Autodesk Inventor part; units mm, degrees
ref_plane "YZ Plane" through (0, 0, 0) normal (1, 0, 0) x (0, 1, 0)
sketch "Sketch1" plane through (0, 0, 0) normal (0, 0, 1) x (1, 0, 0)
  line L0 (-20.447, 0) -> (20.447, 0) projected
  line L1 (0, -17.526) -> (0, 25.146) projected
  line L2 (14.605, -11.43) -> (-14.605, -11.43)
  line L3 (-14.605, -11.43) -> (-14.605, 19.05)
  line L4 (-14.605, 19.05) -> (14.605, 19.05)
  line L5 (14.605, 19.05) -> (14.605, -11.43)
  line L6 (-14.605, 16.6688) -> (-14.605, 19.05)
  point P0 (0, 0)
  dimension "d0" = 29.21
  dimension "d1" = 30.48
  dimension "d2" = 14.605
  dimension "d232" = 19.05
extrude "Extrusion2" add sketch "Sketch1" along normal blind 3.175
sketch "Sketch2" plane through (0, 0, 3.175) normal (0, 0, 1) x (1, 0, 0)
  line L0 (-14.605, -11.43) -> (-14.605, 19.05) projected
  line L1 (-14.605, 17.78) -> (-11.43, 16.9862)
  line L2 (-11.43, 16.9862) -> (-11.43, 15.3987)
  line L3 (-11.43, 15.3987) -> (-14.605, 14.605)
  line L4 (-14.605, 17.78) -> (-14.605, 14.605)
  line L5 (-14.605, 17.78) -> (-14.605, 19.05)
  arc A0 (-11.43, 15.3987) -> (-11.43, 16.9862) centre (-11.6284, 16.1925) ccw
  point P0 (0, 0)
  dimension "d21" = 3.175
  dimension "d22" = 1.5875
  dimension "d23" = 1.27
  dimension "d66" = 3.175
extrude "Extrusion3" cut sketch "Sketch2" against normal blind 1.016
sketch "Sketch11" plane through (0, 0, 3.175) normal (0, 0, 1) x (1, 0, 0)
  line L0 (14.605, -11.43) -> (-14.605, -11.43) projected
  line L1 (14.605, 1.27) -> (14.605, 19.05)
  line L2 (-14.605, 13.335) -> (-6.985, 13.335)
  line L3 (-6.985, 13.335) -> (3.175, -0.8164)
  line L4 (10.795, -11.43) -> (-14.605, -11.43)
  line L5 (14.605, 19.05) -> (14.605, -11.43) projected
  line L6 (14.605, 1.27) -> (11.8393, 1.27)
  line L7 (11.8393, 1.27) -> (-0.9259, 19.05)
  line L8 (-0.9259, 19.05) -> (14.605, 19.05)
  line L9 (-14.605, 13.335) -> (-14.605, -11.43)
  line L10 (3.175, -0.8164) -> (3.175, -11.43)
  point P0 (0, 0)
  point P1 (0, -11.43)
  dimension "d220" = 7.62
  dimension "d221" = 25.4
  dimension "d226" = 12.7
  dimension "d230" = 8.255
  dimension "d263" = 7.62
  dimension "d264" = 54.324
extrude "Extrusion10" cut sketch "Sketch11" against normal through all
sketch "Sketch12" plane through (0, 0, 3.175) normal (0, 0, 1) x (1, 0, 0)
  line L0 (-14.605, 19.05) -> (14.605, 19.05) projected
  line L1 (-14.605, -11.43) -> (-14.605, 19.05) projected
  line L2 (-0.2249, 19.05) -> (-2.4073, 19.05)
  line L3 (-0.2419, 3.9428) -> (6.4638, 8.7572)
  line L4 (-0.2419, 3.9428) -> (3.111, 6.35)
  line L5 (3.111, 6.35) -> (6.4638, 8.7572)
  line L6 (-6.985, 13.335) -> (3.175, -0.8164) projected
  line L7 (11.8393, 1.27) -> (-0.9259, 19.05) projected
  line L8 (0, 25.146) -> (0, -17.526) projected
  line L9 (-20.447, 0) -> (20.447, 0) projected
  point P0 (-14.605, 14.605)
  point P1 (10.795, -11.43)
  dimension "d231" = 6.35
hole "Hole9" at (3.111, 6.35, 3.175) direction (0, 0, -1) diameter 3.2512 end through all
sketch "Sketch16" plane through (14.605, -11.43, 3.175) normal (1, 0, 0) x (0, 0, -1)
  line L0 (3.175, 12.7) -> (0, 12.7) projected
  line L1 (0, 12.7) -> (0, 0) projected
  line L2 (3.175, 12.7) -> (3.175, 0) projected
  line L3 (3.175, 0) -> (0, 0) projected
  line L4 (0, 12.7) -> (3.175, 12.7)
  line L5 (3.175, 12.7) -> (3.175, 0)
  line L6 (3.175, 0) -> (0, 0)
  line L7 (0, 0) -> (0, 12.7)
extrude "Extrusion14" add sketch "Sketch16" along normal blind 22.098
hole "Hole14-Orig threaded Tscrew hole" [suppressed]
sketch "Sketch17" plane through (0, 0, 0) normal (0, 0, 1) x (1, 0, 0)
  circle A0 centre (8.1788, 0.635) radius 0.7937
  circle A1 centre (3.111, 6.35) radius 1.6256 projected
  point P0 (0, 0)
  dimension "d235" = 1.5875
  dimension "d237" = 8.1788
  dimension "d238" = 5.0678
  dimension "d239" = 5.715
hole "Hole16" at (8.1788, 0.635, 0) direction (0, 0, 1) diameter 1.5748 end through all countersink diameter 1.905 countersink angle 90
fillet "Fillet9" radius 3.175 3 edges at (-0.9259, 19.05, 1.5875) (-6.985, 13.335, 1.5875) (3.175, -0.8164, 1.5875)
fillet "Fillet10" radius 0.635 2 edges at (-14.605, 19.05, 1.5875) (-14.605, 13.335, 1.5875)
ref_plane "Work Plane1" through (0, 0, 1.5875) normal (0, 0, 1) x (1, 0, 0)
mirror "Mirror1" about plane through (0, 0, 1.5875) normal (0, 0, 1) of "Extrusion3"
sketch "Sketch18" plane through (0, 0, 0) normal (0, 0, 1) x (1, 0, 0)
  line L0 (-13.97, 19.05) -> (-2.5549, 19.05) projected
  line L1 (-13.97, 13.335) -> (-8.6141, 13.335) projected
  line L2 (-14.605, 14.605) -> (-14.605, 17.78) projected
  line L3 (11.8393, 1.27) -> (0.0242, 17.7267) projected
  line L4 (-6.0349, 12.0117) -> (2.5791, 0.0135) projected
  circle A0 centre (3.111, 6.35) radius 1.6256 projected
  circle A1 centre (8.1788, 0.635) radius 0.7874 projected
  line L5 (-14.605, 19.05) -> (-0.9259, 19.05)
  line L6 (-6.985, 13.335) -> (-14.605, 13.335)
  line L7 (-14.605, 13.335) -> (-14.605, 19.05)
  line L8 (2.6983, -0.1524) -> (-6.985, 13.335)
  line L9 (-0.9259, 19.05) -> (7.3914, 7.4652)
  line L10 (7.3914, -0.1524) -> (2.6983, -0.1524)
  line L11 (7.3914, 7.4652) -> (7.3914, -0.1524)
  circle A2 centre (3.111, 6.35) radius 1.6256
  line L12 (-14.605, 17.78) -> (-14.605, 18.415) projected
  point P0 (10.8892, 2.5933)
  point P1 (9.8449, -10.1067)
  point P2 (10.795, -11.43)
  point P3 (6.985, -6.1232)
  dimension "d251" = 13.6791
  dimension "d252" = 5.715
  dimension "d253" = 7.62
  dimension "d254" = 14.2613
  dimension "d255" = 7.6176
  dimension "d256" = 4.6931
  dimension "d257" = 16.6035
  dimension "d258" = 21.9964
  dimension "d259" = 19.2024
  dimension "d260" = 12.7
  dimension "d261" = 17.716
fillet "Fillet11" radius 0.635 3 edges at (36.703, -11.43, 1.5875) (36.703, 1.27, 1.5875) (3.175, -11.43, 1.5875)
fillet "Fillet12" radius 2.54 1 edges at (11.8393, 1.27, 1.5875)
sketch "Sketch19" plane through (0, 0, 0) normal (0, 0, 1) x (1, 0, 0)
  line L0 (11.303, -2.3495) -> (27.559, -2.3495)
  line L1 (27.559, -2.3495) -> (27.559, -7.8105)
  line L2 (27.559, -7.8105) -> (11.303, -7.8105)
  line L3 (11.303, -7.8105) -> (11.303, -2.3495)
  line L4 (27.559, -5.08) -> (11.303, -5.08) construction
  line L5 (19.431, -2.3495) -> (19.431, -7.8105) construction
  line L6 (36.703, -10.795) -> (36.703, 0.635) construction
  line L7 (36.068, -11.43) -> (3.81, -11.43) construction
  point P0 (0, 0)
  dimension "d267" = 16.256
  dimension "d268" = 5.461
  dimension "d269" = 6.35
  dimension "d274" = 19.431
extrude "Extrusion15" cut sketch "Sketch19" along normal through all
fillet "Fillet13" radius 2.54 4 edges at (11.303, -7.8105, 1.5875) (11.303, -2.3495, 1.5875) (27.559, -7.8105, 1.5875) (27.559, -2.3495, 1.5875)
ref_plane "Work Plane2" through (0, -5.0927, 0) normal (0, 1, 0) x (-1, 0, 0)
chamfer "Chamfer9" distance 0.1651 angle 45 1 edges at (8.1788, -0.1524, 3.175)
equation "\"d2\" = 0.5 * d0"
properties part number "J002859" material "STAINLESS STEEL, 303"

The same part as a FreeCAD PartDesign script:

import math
import FreeCAD as App
import Part
import Sketcher

V = App.Vector
Q = App.Units.Quantity


def edges_at(feature, points):
    """Names of the edges that pass closest to the given points."""
    edges = feature.Shape.Edges
    near = lambda p: min(range(len(edges)), key=lambda i: edges[i].distToShape(Part.Vertex(*p))[0])
    return sorted({f"Edge{near(p) + 1}" for p in points})

doc = App.newDocument("Part")
body = doc.addObject("PartDesign::Body", "Body")

sketch1 = body.newObject("Sketcher::SketchObject", "Sketch")
sketch1.AttachmentSupport = (doc.getObject("XY_Plane"), [""])
sketch1.MapMode = "FlatFace"
sketch1.addGeometry([
    Part.LineSegment(V(-15, -11, 0), V(15, -11, 0)),
    Part.LineSegment(V(15, -11, 0), V(15, 19, 0)),
    Part.LineSegment(V(15, 19, 0), V(-15, 19, 0)),
    Part.LineSegment(V(-15, 19, 0), V(-15, -11, 0)),
], False)
sketch1.addConstraint([
    Sketcher.Constraint("Coincident", 0, 2, 1, 1),
    Sketcher.Constraint("Coincident", 1, 2, 2, 1),
    Sketcher.Constraint("Coincident", 2, 2, 3, 1),
    Sketcher.Constraint("Coincident", 3, 2, 0, 1),
    Sketcher.Constraint("Horizontal", 0),
    Sketcher.Constraint("Vertical", 1),
    Sketcher.Constraint("Horizontal", 2),
    Sketcher.Constraint("Vertical", 3),
    Sketcher.Constraint("DistanceY", 1, 1, 1, 2, Q("1.2 in")),
    Sketcher.Constraint("DistanceX", 0, 1, 0, 2, Q("1.15 in")),
    Sketcher.Constraint("DistanceY", -1, 1, 1, 2, Q("0.75 in")),
    Sketcher.Constraint("DistanceX", -1, 1, 0, 2, Q("0.575 in")),
])
pad1 = body.newObject("PartDesign::Pad", "Pad")
pad1.Profile = sketch1
pad1.Length = Q("0.125 in")

sketch2 = body.newObject("Sketcher::SketchObject", "Sketch001")
sketch2.AttachmentSupport = (doc.getObject("XY_Plane"), [""])
sketch2.MapMode = "FlatFace"
sketch2.AttachmentOffset = App.Placement(V(0, 0, 0.125 * 25.4), App.Rotation())
sketch2.addGeometry([
    Part.LineSegment(V(-14.6, 17.8, 0), V(-14.6, 14.6, 0)),
    Part.LineSegment(V(-14.6, 14.6, 0), V(-11.4, 15.4, 0)),
    Part.ArcOfCircle(Part.Circle(V(-11.6, 16.2, 0), V(0, 0, 1), 0.8), math.radians(-76), math.radians(76)),
    Part.LineSegment(V(-11.4, 17, 0), V(-14.6, 17.8, 0)),
], False)
sketch2.addConstraint([
    Sketcher.Constraint("Coincident", 0, 2, 1, 1),
    Sketcher.Constraint("Tangent", 1, 2, 2, 1),
    Sketcher.Constraint("Tangent", 2, 2, 3, 1),
    Sketcher.Constraint("Coincident", 3, 2, 0, 1),
    Sketcher.Constraint("Vertical", 0),
    Sketcher.Constraint("Vertical", 1, 2, 2, 2),
    Sketcher.Constraint("DistanceY", 0, 2, 0, 1, Q("0.125 in")),
    Sketcher.Constraint("DistanceX", 0, 2, 1, 2, Q("0.125 in")),
    Sketcher.Constraint("DistanceY", 1, 2, 2, 2, Q("0.0625 in")),
    Sketcher.Constraint("DistanceY", -1, 1, 3, 2, Q("0.7 in")),
    Sketcher.Constraint("DistanceX", 1, 2, -1, 1, Q("0.45 in")),
])
pocket1 = body.newObject("PartDesign::Pocket", "Pocket")
pocket1.Profile = sketch2
pocket1.Length = Q("0.04 in")

sketch3 = body.newObject("Sketcher::SketchObject", "Sketch002")
sketch3.AttachmentSupport = (doc.getObject("XY_Plane"), [""])
sketch3.MapMode = "FlatFace"
sketch3.AttachmentOffset = App.Placement(V(0, 0, 0.125 * 25.4), App.Rotation())
sketch3.addGeometry([
    Part.LineSegment(V(-14.6, -11.4, 0), V(3.2, -11.4, 0)),
    Part.LineSegment(V(3.2, -11.4, 0), V(3.2, -0.8, 0)),
    Part.LineSegment(V(3.2, -0.8, 0), V(-7, 13.3, 0)),
    Part.LineSegment(V(-7, 13.3, 0), V(-14.6, 13.3, 0)),
    Part.LineSegment(V(-14.6, 13.3, 0), V(-14.6, -11.4, 0)),
    Part.LineSegment(V(11.8, 1.3, 0), V(14.6, 1.3, 0)),
    Part.LineSegment(V(14.6, 1.3, 0), V(14.6, 19.1, 0)),
    Part.LineSegment(V(14.6, 19.1, 0), V(-0.9, 19.1, 0)),
    Part.LineSegment(V(-0.9, 19.1, 0), V(11.8, 1.3, 0)),
], False)
sketch3.addConstraint([
    Sketcher.Constraint("Coincident", 0, 2, 1, 1),
    Sketcher.Constraint("Coincident", 1, 2, 2, 1),
    Sketcher.Constraint("Coincident", 2, 2, 3, 1),
    Sketcher.Constraint("Coincident", 3, 2, 4, 1),
    Sketcher.Constraint("Coincident", 4, 2, 0, 1),
    Sketcher.Constraint("Coincident", 5, 2, 6, 1),
    Sketcher.Constraint("Coincident", 6, 2, 7, 1),
    Sketcher.Constraint("Coincident", 7, 2, 8, 1),
    Sketcher.Constraint("Coincident", 8, 2, 5, 1),
    Sketcher.Constraint("Horizontal", 0),
    Sketcher.Constraint("Vertical", 1),
    Sketcher.Constraint("Horizontal", 3),
    Sketcher.Constraint("Vertical", 4),
    Sketcher.Constraint("Horizontal", 5),
    Sketcher.Constraint("Vertical", 6),
    Sketcher.Constraint("Horizontal", 7),
    Sketcher.Constraint("Parallel", 2, 8),
    Sketcher.Constraint("Equal", 0, 6),
    Sketcher.Constraint("DistanceX", 3, 2, 3, 1, Q("0.3 in")),
    Sketcher.Constraint("DistanceY", 0, 2, 5, 2, Q("0.5 in")),
    Sketcher.Constraint("DistanceX", 0, 1, 0, 2, Q("0.7 in")),
    Sketcher.Constraint("DistanceY", 4, 2, 4, 1, Q("0.975 in")),
    Sketcher.Constraint("DistanceY", 0, 2, -1, 1, Q("0.45 in")),
    Sketcher.Constraint("DistanceX", 1, 2, 5, 2, Q("0.45 in")),
    Sketcher.Constraint("DistanceX", -1, 1, 0, 2, Q("0.125 in")),
    Sketcher.Constraint("DistanceX", 5, 1, 5, 2, 2.7657),
    Sketcher.Constraint("DistanceX", 7, 2, 7, 1, 15.531),
])
pocket2 = body.newObject("PartDesign::Pocket", "Pocket001")
pocket2.Profile = sketch3
pocket2.Type = "ThroughAll"

sketch4 = body.newObject("Sketcher::SketchObject", "Sketch003")
sketch4.AttachmentSupport = (doc.getObject("XY_Plane"), [""])
sketch4.MapMode = "FlatFace"
sketch4.AttachmentOffset = App.Placement(V(0, 0, 0.125 * 25.4), App.Rotation())
sketch4.addGeometry(Part.Circle(V(3.1, 6.3, 0), V(0, 0, 1), 1.6), False)
sketch4.addConstraint([
    Sketcher.Constraint("Diameter", 0, Q("0.128 in")),
    Sketcher.Constraint("DistanceY", -1, 1, 0, 3, Q("0.25 in")),
    Sketcher.Constraint("DistanceX", -1, 1, 0, 3, 3.111),
])
doc.recompute()
hole = body.newObject("PartDesign::Hole", "Hole")
hole.Profile = sketch4
hole.ThreadType = "None"
hole.Diameter = Q("0.128 in")
hole.DepthType = "ThroughAll"

sketch5 = body.newObject("Sketcher::SketchObject", "Sketch004")
sketch5.AttachmentSupport = (doc.getObject("YZ_Plane"), [""])
sketch5.MapMode = "FlatFace"
sketch5.AttachmentOffset = App.Placement(V(0, 0, 0.575 * 25.4), App.Rotation())
sketch5.addGeometry([
    Part.LineSegment(V(-11.4, 0, 0), V(1.3, 0, 0)),
    Part.LineSegment(V(1.3, 0, 0), V(1.3, 3.2, 0)),
    Part.LineSegment(V(1.3, 3.2, 0), V(-11.4, 3.2, 0)),
    Part.LineSegment(V(-11.4, 3.2, 0), V(-11.4, 0, 0)),
], False)
sketch5.addConstraint([
    Sketcher.Constraint("Coincident", 0, 2, 1, 1),
    Sketcher.Constraint("Coincident", 1, 2, 2, 1),
    Sketcher.Constraint("Coincident", 2, 2, 3, 1),
    Sketcher.Constraint("Coincident", 3, 2, 0, 1),
    Sketcher.Constraint("Horizontal", 0),
    Sketcher.Constraint("Vertical", 1),
    Sketcher.Constraint("Horizontal", 2),
    Sketcher.Constraint("Vertical", 3),
    Sketcher.Constraint("PointOnObject", 0, 2, -1),
    Sketcher.Constraint("DistanceX", 0, 1, 0, 2, Q("0.5 in")),
    Sketcher.Constraint("DistanceY", 1, 1, 1, 2, Q("0.125 in")),
    Sketcher.Constraint("DistanceX", -1, 1, 0, 2, Q("0.05 in")),
])
pad2 = body.newObject("PartDesign::Pad", "Pad001")
pad2.Profile = sketch5
pad2.Length = Q("0.87 in")

sketch6 = body.newObject("Sketcher::SketchObject", "Sketch005")
sketch6.AttachmentSupport = (doc.getObject("XY_Plane"), [""])
sketch6.MapMode = "FlatFace"
sketch6.addGeometry(Part.Circle(V(8.2, 0.6, 0), V(0, 0, 1), 0.8), False)
sketch6.addConstraint([
    Sketcher.Constraint("Diameter", 0, Q("0.062 in")),
    Sketcher.Constraint("DistanceX", -1, 1, 0, 3, Q("0.322 in")),
    Sketcher.Constraint("DistanceY", -1, 1, 0, 3, Q("0.025 in")),
])
doc.recompute()
hole2 = body.newObject("PartDesign::Hole", "Hole001")
hole2.Profile = sketch6
hole2.ThreadType = "None"
hole2.Diameter = Q("0.062 in")
hole2.DepthType = "ThroughAll"
hole2.HoleCutType = "Countersink"
hole2.HoleCutDiameter = Q("0.075 in")
hole2.HoleCutCountersinkAngle = 90
hole2.Reversed = True
doc.recompute()

fillet = body.newObject("PartDesign::Fillet", "Fillet")
fillet.Base = (hole2, edges_at(hole2, [(-0.926, 19.05, 1.587), (-6.985, 13.335, 1.587), (3.175, -0.816, 1.587)]))
fillet.Radius = Q("0.125 in")
doc.recompute()

fillet2 = body.newObject("PartDesign::Fillet", "Fillet001")
fillet2.Base = (fillet, edges_at(fillet, [(-14.605, 19.05, 1.587), (-14.605, 13.335, 1.587)]))
fillet2.Radius = Q("0.025 in")
doc.recompute()

datumplane = body.newObject("PartDesign::Plane", "DatumPlane")
datumplane.AttachmentSupport = (doc.getObject("XY_Plane"), [""])
datumplane.MapMode = "FlatFace"
datumplane.AttachmentOffset = App.Placement(V(0, 0, 0.0625 * 25.4), App.Rotation())
mirrored = body.newObject("PartDesign::Mirrored", "Mirrored")
mirrored.Originals = [pocket1]
mirrored.MirrorPlane = (datumplane, [""])
body.Tip = mirrored
doc.recompute()

fillet3 = body.newObject("PartDesign::Fillet", "Fillet002")
fillet3.Base = (mirrored, edges_at(mirrored, [(36.703, -11.43, 1.587), (36.703, 1.27, 1.587), (3.175, -11.43, 1.587)]))
fillet3.Radius = Q("0.025 in")
doc.recompute()

fillet4 = body.newObject("PartDesign::Fillet", "Fillet003")
fillet4.Base = (fillet3, edges_at(fillet3, [(11.839, 1.27, 1.587)]))
fillet4.Radius = Q("0.1 in")

sketch7 = body.newObject("Sketcher::SketchObject", "Sketch006")
sketch7.AttachmentSupport = (doc.getObject("XY_Plane"), [""])
sketch7.MapMode = "FlatFace"
sketch7.addGeometry([
    Part.LineSegment(V(28, -2, 0), V(11, -2, 0)),
    Part.LineSegment(V(11, -2, 0), V(11, -8, 0)),
    Part.LineSegment(V(11, -8, 0), V(28, -8, 0)),
    Part.LineSegment(V(28, -8, 0), V(28, -2, 0)),
], False)
sketch7.addConstraint([
    Sketcher.Constraint("Coincident", 0, 2, 1, 1),
    Sketcher.Constraint("Coincident", 1, 2, 2, 1),
    Sketcher.Constraint("Coincident", 2, 2, 3, 1),
    Sketcher.Constraint("Coincident", 3, 2, 0, 1),
    Sketcher.Constraint("Horizontal", 0),
    Sketcher.Constraint("Vertical", 1),
    Sketcher.Constraint("Horizontal", 2),
    Sketcher.Constraint("Vertical", 3),
    Sketcher.Constraint("DistanceX", 0, 2, 0, 1, Q("0.64 in")),
    Sketcher.Constraint("DistanceY", 1, 2, 1, 1, Q("0.215 in")),
    Sketcher.Constraint("DistanceX", -1, 1, 0, 2, Q("0.445 in")),
    Sketcher.Constraint("DistanceY", 0, 2, -1, 1, Q("0.0925 in")),
])
pocket3 = body.newObject("PartDesign::Pocket", "Pocket002")
pocket3.Profile = sketch7
pocket3.Type = "ThroughAll"
pocket3.Reversed = True
doc.recompute()

fillet5 = body.newObject("PartDesign::Fillet", "Fillet004")
fillet5.Base = (pocket3, edges_at(pocket3, [
    (11.303, -7.811, 1.587),
    (11.303, -2.349, 1.587),
    (27.559, -7.811, 1.587),
    (27.559, -2.349, 1.587),
]))
fillet5.Radius = Q("0.1 in")
doc.recompute()

chamfer = body.newObject("PartDesign::Chamfer", "Chamfer")
chamfer.Base = (fillet5, edges_at(fillet5, [(8.179, -0.152, 3.175)]))
chamfer.Size = Q("0.0065 in")

doc.recompute()
